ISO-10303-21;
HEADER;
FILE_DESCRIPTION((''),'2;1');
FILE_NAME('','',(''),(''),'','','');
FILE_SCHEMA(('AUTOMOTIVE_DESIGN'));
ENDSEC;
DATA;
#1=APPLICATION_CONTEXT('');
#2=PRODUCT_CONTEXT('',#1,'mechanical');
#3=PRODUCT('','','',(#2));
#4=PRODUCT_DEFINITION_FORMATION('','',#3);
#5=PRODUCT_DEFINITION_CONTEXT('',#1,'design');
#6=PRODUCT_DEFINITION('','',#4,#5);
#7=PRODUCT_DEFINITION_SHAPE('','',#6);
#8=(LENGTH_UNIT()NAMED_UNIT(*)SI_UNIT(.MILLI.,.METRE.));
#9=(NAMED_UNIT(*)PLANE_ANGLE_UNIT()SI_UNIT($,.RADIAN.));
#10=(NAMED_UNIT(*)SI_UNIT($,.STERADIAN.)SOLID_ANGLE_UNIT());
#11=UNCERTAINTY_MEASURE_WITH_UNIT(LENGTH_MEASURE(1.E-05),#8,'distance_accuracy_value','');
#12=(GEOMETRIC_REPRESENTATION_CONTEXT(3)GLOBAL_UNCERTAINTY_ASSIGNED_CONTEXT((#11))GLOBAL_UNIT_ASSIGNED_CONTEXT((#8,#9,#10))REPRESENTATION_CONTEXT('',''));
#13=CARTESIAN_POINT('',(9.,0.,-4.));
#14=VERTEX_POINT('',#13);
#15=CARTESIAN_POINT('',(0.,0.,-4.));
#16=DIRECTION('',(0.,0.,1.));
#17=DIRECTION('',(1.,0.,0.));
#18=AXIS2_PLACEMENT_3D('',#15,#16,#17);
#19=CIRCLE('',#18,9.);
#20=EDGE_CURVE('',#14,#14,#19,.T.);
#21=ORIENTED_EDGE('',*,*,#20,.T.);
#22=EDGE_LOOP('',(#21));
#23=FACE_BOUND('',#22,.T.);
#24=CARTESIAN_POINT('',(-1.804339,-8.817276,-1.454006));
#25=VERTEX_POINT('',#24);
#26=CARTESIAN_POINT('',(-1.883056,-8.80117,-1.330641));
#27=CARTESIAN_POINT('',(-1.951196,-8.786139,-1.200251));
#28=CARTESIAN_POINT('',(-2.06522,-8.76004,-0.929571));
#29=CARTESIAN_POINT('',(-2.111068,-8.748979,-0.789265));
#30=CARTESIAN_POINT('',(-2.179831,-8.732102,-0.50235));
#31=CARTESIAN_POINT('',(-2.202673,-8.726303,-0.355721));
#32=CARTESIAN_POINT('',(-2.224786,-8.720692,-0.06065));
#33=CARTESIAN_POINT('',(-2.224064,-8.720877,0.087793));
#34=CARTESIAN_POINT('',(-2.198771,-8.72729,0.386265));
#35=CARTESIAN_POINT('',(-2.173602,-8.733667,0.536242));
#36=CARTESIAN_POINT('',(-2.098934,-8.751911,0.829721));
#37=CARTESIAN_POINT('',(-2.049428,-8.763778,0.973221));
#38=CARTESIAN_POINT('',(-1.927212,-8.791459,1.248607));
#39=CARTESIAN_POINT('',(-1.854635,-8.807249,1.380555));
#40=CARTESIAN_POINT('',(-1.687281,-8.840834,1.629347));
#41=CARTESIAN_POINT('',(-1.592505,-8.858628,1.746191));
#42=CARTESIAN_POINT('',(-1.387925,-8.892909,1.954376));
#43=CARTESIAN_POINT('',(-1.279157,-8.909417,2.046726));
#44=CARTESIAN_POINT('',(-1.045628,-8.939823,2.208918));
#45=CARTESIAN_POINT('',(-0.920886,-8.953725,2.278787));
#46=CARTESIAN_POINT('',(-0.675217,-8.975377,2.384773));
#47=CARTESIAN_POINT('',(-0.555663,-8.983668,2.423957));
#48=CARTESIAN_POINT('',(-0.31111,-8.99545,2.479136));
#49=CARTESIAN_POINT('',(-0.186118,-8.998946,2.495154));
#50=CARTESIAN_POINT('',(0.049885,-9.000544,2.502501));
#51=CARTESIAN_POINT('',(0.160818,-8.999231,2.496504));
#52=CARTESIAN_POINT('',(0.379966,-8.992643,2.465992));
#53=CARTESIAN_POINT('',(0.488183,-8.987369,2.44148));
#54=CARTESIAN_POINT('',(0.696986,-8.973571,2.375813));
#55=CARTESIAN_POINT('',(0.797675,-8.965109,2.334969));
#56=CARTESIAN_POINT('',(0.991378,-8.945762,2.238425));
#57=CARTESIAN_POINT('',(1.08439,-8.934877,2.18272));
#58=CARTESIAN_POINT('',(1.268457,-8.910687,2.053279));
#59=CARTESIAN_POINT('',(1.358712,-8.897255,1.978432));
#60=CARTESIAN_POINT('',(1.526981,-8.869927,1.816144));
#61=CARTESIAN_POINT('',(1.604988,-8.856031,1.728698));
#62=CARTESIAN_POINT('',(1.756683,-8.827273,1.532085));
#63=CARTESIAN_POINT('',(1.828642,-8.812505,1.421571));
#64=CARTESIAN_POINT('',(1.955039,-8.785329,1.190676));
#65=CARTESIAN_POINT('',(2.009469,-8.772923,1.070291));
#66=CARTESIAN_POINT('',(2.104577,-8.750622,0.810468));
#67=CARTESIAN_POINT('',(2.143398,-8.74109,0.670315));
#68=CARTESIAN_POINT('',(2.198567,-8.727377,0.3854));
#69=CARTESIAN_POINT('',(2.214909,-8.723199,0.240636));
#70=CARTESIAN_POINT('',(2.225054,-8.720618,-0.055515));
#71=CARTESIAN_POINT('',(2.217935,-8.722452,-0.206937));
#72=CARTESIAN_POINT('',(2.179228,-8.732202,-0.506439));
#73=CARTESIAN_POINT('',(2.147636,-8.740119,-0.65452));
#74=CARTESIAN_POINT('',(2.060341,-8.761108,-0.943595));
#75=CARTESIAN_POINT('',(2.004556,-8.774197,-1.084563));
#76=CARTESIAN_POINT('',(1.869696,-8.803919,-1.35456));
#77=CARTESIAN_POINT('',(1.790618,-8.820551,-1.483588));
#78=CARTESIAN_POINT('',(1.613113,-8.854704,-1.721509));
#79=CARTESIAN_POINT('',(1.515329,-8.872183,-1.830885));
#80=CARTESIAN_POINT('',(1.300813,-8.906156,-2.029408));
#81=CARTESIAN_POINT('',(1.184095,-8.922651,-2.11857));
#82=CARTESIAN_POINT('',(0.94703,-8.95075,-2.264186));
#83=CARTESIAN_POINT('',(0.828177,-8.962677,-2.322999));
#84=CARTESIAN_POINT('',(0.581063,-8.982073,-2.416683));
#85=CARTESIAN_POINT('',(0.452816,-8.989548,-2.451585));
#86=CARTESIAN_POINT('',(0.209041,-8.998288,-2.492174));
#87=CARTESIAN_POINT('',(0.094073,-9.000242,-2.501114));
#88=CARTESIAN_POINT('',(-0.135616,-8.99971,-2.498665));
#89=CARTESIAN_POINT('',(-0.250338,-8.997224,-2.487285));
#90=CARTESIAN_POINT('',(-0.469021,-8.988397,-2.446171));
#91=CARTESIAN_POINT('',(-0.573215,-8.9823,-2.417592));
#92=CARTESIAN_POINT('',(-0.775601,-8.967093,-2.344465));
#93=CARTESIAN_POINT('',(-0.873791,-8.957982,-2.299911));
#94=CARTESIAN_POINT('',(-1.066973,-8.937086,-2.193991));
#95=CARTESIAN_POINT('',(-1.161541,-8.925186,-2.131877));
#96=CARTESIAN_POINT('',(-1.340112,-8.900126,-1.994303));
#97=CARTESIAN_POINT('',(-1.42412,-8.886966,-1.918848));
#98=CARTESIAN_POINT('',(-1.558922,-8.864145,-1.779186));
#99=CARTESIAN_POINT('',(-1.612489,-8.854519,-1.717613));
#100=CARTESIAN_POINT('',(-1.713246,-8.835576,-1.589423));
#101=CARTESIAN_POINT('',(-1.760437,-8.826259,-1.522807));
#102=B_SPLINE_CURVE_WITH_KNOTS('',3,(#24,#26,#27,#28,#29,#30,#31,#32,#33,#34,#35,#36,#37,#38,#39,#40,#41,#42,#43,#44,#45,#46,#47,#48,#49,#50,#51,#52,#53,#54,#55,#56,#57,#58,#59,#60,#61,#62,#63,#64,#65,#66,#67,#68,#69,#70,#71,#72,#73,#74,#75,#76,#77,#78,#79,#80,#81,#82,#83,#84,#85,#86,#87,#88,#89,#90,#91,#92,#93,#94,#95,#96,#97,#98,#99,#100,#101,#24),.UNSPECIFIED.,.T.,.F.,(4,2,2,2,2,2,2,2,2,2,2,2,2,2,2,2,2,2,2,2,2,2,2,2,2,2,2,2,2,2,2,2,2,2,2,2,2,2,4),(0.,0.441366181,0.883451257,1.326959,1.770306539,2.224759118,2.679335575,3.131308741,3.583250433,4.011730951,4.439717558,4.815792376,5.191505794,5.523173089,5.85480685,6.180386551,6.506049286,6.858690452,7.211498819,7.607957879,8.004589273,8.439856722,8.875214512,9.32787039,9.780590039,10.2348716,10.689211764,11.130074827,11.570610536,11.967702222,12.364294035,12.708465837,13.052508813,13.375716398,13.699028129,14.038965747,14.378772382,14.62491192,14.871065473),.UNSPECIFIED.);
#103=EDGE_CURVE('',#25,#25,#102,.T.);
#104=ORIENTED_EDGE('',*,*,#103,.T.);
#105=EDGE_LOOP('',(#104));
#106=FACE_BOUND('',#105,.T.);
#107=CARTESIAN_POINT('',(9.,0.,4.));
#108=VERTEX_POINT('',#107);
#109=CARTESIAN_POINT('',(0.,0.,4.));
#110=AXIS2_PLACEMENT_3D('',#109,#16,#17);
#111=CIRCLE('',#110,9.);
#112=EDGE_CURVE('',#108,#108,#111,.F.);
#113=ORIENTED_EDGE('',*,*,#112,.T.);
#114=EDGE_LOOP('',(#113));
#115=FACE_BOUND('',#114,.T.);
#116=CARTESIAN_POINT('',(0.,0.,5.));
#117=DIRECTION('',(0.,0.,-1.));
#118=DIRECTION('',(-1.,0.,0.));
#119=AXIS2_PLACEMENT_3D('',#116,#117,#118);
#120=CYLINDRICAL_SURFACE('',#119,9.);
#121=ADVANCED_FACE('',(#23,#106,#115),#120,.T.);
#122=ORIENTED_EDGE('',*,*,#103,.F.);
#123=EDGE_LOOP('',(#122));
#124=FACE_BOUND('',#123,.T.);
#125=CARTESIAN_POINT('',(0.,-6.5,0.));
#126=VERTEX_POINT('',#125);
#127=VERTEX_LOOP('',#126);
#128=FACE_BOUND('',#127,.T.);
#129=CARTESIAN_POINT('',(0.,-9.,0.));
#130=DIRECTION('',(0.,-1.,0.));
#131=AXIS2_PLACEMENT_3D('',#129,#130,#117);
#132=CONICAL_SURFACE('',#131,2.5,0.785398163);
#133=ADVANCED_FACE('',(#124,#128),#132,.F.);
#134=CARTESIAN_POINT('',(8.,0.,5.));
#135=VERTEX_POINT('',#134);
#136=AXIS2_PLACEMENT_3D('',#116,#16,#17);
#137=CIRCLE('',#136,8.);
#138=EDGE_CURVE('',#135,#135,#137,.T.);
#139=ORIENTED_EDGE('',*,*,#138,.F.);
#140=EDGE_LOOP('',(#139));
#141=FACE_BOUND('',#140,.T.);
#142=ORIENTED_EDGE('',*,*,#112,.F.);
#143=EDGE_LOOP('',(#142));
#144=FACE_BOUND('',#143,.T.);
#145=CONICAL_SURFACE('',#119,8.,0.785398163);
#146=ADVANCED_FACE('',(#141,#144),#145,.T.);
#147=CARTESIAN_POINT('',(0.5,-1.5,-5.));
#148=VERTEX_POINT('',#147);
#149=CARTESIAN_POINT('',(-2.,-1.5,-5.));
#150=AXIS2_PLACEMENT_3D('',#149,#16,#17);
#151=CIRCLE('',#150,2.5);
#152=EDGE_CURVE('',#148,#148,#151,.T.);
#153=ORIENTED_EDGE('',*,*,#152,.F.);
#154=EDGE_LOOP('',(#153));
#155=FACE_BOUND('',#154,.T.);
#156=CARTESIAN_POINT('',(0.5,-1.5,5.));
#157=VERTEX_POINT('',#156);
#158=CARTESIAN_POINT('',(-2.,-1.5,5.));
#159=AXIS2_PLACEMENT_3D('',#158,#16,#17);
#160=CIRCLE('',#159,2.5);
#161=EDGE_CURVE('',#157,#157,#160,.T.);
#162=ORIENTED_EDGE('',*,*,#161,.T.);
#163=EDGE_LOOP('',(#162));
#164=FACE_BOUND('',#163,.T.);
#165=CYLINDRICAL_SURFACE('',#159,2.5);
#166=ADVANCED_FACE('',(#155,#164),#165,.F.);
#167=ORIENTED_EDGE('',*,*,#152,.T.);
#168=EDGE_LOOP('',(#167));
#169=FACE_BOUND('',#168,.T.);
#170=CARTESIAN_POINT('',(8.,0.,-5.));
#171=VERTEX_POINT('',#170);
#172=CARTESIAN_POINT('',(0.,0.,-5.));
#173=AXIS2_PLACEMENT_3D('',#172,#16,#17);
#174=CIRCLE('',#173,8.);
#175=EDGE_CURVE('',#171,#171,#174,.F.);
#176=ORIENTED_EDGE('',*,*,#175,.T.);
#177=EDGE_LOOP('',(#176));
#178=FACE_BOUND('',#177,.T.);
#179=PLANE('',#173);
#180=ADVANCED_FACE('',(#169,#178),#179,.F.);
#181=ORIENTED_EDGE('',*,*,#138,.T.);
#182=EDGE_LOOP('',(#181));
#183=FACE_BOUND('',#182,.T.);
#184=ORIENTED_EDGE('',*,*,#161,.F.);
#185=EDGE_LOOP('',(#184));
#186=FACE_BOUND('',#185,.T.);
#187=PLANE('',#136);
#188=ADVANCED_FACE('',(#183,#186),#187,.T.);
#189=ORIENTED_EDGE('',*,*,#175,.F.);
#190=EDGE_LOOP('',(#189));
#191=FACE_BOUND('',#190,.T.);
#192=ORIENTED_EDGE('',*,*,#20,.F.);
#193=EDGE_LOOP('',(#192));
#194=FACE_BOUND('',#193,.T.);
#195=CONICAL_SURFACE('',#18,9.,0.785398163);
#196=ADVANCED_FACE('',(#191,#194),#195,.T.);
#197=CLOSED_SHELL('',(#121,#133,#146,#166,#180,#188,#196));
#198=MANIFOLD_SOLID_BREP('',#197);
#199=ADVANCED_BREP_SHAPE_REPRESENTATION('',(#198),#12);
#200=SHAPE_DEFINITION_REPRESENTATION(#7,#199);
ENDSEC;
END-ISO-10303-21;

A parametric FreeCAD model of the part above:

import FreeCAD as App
import Part
import Sketcher
Q = App.Units.Quantity


def edges_at(feature, points):
    """Names of the edges that pass closest to the given points."""
    edges = feature.Shape.Edges
    near = lambda p: min(range(len(edges)), key=lambda i: edges[i].distToShape(Part.Vertex(*p))[0])
    return sorted({f"Edge{near(p) + 1}" for p in points})


def add_polygon(sketch, points):
    """Adds a closed chain of lines whose ends are joined by coincident constraints."""
    first, n = sketch.GeometryCount, len(points)
    for a, b in zip(points, points[1:] + points[:1]):
        sketch.addGeometry(Part.LineSegment(App.Vector(*a, 0), App.Vector(*b, 0)), False)
    for i in range(n):
        sketch.addConstraint(Sketcher.Constraint("Coincident", first + i, 2, first + (i + 1) % n, 1))

doc = App.newDocument("Part")
body = doc.addObject("PartDesign::Body", "Body")

# Sketch on XY plane
sketch1 = body.newObject("Sketcher::SketchObject", "Sketch")
sketch1.AttachmentSupport = (doc.getObject("XY_Plane"), [""])
sketch1.MapMode = "FlatFace"
sketch1.addGeometry(Part.Circle(App.Vector(0, 0, 0), App.Vector(0, 0, 1), 9), False)
sketch1.addConstraint([
    Sketcher.Constraint("Coincident", 0, 3, -1, 1),
    Sketcher.Constraint("Diameter", 0, Q("18 mm")),
])
pad1 = body.newObject("PartDesign::Pad", "Pad")
pad1.Profile = sketch1
pad1.Length = 10
pad1.Midplane = True
doc.recompute()

chamfer = body.newObject("PartDesign::Chamfer", "Chamfer")
chamfer.Base = (pad1, edges_at(pad1, [(-9, 0, -5), (-9, 0, 5)]))
chamfer.Size = 1

# Sketch on XY plane
sketch2 = body.newObject("Sketcher::SketchObject", "Sketch001")
sketch2.AttachmentSupport = (doc.getObject("XY_Plane"), [""])
sketch2.MapMode = "FlatFace"
sketch2.AttachmentOffset = App.Placement(App.Vector(0, 0, 5), App.Rotation())
sketch2.addGeometry(Part.Circle(App.Vector(-2, -1.5, 0), App.Vector(0, 0, 1), 2.5), False)
sketch2.addConstraint([
    Sketcher.Constraint("Diameter", 0, Q("5 mm")),
    Sketcher.Constraint("DistanceX", 0, 3, -1, 1, Q("2 mm")),
    Sketcher.Constraint("DistanceY", 0, 3, -1, 1, Q("1.5 mm")),
])
doc.recompute()
hole = body.newObject("PartDesign::Hole", "Hole")
hole.Profile = sketch2
hole.ThreadType = "None"
hole.Diameter = 5
hole.DepthType = "ThroughAll"

# Sketch on YZ plane
sketch3 = body.newObject("Sketcher::SketchObject", "Sketch002")
sketch3.AttachmentSupport = (doc.getObject("YZ_Plane"), [""])
sketch3.MapMode = "FlatFace"
add_polygon(sketch3, [(-6.5, 0), (-9, 0), (-9, -2.5)])  # lines 0-2
sketch3.addConstraint([
    Sketcher.Constraint("Horizontal", 0),
    Sketcher.Constraint("Vertical", 1),
    Sketcher.Constraint("PointOnObject", 0, 2, -1),
    Sketcher.Constraint("Equal", 0, 1),
    Sketcher.Constraint("DistanceX", 0, 2, 0, 1, Q("2.5 mm")),
    Sketcher.Constraint("DistanceX", 0, 2, -1, 1, Q("9 mm")),
])
groove = body.newObject("PartDesign::Groove", "Groove")
groove.Profile = sketch3
groove.ReferenceAxis = (sketch3, ["H_Axis"])
groove.Angle = 360

doc.recompute()
